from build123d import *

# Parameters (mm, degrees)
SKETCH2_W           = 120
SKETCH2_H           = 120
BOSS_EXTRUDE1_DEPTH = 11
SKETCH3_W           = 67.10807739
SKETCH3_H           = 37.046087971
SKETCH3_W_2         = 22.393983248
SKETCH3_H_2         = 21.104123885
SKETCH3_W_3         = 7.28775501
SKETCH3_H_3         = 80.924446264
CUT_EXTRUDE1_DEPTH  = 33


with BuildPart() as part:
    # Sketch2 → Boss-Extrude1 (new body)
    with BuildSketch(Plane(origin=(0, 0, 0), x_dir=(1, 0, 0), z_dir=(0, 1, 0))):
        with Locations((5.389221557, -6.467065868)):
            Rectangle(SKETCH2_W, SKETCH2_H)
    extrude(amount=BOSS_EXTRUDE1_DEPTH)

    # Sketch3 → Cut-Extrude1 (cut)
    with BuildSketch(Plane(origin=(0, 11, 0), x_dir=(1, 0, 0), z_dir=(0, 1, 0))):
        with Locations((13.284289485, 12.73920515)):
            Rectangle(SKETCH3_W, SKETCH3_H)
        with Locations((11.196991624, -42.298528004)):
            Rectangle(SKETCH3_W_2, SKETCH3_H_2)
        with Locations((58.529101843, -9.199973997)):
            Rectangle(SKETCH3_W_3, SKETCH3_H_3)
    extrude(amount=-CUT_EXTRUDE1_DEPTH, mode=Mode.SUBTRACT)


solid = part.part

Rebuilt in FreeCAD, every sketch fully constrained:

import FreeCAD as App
import Part
import Sketcher

V = App.Vector
Q = App.Units.Quantity


def add_polygon(sketch, points):
    """Adds a closed chain of lines whose ends are joined by coincident constraints."""
    first, n = sketch.GeometryCount, len(points)
    for a, b in zip(points, points[1:] + points[:1]):
        sketch.addGeometry(Part.LineSegment(App.Vector(*a, 0), App.Vector(*b, 0)), False)
    for i in range(n):
        sketch.addConstraint(Sketcher.Constraint("Coincident", first + i, 2, first + (i + 1) % n, 1))

doc = App.newDocument("Part")
body = doc.addObject("PartDesign::Body", "Body")

# Sketch on XZ plane
sketch1 = doc.addObject("Sketcher::SketchObject", "Sketch")
body.addObject(sketch1)
sketch1.AttachmentSupport = (doc.XZ_Plane, [""])
sketch1.MapMode = "FlatFace"
add_polygon(sketch1, [(-55, -54), (-55, 66), (65, 66), (65, -54)])  # lines 0-3
sketch1.addConstraint([
    Sketcher.Constraint("Vertical", 0),
    Sketcher.Constraint("Horizontal", 1),
    Sketcher.Constraint("Vertical", 2),
    Sketcher.Constraint("Horizontal", 3),
    Sketcher.Constraint("Equal", 3, 0),
    Sketcher.Constraint("DistanceX", 1, 1, 1, 2, Q("120 mm")),
    Sketcher.Constraint("DistanceX", 0, 2, -1, 1, Q("54.610778 mm")),
    Sketcher.Constraint("DistanceY", -1, 1, 0, 2, Q("66.467066 mm")),
])
pad1 = doc.addObject("PartDesign::Pad", "Pad")
body.addObject(pad1)
pad1.Profile = sketch1
pad1.Length = 11
pad1.Reversed = True

# Sketch on XZ plane
sketch2 = doc.addObject("Sketcher::SketchObject", "Sketch001")
body.addObject(sketch2)
sketch2.AttachmentSupport = (doc.XZ_Plane, [""])
sketch2.MapMode = "FlatFace"
sketch2.AttachmentOffset = App.Placement(V(0, 0, -11), App.Rotation())
add_polygon(sketch2, [(-20, -31), (-20, 6), (47, 6), (47, -31)])  # lines 0-3
add_polygon(sketch2, [(0, 32), (0, 53), (22, 53), (22, 32)])  # lines 4-7
add_polygon(sketch2, [(55, -31), (55, 50), (62, 50), (62, -31)])  # lines 8-11
sketch2.addConstraint([
    Sketcher.Constraint("Vertical", 0),
    Sketcher.Constraint("Horizontal", 1),
    Sketcher.Constraint("Vertical", 2),
    Sketcher.Constraint("Horizontal", 3),
    Sketcher.Constraint("Vertical", 4),
    Sketcher.Constraint("Horizontal", 5),
    Sketcher.Constraint("Vertical", 6),
    Sketcher.Constraint("Horizontal", 7),
    Sketcher.Constraint("Vertical", 8),
    Sketcher.Constraint("Horizontal", 9),
    Sketcher.Constraint("Vertical", 10),
    Sketcher.Constraint("Horizontal", 11),
    Sketcher.Constraint("PointOnObject", 4, 2, -2),
    Sketcher.Constraint("Horizontal", 3, 2, 10, 2),
    Sketcher.Constraint("DistanceX", 1, 1, 1, 2, Q("67.108077 mm")),
    Sketcher.Constraint("DistanceX", 5, 1, 5, 2, Q("22.393983 mm")),
    Sketcher.Constraint("DistanceX", 9, 1, 9, 2, Q("7.287755 mm")),
    Sketcher.Constraint("DistanceY", 0, 1, 0, 2, Q("37.046088 mm")),
    Sketcher.Constraint("DistanceY", 4, 1, 4, 2, Q("21.104124 mm")),
    Sketcher.Constraint("DistanceY", 8, 1, 8, 2, Q("80.924446 mm")),
    Sketcher.Constraint("DistanceX", 0, 2, -1, 1, Q("20.269749 mm")),
    Sketcher.Constraint("DistanceY", -1, 1, 0, 2, Q("5.783839 mm")),
    Sketcher.Constraint("DistanceY", -1, 1, 4, 2, Q("52.85059 mm")),
    Sketcher.Constraint("DistanceX", -1, 1, 9, 2, Q("62.172979 mm")),
])
pocket1 = doc.addObject("PartDesign::Pocket", "Pocket")
body.addObject(pocket1)
pocket1.Profile = sketch2
pocket1.Length = 33
pocket1.Reversed = True

doc.recompute()
